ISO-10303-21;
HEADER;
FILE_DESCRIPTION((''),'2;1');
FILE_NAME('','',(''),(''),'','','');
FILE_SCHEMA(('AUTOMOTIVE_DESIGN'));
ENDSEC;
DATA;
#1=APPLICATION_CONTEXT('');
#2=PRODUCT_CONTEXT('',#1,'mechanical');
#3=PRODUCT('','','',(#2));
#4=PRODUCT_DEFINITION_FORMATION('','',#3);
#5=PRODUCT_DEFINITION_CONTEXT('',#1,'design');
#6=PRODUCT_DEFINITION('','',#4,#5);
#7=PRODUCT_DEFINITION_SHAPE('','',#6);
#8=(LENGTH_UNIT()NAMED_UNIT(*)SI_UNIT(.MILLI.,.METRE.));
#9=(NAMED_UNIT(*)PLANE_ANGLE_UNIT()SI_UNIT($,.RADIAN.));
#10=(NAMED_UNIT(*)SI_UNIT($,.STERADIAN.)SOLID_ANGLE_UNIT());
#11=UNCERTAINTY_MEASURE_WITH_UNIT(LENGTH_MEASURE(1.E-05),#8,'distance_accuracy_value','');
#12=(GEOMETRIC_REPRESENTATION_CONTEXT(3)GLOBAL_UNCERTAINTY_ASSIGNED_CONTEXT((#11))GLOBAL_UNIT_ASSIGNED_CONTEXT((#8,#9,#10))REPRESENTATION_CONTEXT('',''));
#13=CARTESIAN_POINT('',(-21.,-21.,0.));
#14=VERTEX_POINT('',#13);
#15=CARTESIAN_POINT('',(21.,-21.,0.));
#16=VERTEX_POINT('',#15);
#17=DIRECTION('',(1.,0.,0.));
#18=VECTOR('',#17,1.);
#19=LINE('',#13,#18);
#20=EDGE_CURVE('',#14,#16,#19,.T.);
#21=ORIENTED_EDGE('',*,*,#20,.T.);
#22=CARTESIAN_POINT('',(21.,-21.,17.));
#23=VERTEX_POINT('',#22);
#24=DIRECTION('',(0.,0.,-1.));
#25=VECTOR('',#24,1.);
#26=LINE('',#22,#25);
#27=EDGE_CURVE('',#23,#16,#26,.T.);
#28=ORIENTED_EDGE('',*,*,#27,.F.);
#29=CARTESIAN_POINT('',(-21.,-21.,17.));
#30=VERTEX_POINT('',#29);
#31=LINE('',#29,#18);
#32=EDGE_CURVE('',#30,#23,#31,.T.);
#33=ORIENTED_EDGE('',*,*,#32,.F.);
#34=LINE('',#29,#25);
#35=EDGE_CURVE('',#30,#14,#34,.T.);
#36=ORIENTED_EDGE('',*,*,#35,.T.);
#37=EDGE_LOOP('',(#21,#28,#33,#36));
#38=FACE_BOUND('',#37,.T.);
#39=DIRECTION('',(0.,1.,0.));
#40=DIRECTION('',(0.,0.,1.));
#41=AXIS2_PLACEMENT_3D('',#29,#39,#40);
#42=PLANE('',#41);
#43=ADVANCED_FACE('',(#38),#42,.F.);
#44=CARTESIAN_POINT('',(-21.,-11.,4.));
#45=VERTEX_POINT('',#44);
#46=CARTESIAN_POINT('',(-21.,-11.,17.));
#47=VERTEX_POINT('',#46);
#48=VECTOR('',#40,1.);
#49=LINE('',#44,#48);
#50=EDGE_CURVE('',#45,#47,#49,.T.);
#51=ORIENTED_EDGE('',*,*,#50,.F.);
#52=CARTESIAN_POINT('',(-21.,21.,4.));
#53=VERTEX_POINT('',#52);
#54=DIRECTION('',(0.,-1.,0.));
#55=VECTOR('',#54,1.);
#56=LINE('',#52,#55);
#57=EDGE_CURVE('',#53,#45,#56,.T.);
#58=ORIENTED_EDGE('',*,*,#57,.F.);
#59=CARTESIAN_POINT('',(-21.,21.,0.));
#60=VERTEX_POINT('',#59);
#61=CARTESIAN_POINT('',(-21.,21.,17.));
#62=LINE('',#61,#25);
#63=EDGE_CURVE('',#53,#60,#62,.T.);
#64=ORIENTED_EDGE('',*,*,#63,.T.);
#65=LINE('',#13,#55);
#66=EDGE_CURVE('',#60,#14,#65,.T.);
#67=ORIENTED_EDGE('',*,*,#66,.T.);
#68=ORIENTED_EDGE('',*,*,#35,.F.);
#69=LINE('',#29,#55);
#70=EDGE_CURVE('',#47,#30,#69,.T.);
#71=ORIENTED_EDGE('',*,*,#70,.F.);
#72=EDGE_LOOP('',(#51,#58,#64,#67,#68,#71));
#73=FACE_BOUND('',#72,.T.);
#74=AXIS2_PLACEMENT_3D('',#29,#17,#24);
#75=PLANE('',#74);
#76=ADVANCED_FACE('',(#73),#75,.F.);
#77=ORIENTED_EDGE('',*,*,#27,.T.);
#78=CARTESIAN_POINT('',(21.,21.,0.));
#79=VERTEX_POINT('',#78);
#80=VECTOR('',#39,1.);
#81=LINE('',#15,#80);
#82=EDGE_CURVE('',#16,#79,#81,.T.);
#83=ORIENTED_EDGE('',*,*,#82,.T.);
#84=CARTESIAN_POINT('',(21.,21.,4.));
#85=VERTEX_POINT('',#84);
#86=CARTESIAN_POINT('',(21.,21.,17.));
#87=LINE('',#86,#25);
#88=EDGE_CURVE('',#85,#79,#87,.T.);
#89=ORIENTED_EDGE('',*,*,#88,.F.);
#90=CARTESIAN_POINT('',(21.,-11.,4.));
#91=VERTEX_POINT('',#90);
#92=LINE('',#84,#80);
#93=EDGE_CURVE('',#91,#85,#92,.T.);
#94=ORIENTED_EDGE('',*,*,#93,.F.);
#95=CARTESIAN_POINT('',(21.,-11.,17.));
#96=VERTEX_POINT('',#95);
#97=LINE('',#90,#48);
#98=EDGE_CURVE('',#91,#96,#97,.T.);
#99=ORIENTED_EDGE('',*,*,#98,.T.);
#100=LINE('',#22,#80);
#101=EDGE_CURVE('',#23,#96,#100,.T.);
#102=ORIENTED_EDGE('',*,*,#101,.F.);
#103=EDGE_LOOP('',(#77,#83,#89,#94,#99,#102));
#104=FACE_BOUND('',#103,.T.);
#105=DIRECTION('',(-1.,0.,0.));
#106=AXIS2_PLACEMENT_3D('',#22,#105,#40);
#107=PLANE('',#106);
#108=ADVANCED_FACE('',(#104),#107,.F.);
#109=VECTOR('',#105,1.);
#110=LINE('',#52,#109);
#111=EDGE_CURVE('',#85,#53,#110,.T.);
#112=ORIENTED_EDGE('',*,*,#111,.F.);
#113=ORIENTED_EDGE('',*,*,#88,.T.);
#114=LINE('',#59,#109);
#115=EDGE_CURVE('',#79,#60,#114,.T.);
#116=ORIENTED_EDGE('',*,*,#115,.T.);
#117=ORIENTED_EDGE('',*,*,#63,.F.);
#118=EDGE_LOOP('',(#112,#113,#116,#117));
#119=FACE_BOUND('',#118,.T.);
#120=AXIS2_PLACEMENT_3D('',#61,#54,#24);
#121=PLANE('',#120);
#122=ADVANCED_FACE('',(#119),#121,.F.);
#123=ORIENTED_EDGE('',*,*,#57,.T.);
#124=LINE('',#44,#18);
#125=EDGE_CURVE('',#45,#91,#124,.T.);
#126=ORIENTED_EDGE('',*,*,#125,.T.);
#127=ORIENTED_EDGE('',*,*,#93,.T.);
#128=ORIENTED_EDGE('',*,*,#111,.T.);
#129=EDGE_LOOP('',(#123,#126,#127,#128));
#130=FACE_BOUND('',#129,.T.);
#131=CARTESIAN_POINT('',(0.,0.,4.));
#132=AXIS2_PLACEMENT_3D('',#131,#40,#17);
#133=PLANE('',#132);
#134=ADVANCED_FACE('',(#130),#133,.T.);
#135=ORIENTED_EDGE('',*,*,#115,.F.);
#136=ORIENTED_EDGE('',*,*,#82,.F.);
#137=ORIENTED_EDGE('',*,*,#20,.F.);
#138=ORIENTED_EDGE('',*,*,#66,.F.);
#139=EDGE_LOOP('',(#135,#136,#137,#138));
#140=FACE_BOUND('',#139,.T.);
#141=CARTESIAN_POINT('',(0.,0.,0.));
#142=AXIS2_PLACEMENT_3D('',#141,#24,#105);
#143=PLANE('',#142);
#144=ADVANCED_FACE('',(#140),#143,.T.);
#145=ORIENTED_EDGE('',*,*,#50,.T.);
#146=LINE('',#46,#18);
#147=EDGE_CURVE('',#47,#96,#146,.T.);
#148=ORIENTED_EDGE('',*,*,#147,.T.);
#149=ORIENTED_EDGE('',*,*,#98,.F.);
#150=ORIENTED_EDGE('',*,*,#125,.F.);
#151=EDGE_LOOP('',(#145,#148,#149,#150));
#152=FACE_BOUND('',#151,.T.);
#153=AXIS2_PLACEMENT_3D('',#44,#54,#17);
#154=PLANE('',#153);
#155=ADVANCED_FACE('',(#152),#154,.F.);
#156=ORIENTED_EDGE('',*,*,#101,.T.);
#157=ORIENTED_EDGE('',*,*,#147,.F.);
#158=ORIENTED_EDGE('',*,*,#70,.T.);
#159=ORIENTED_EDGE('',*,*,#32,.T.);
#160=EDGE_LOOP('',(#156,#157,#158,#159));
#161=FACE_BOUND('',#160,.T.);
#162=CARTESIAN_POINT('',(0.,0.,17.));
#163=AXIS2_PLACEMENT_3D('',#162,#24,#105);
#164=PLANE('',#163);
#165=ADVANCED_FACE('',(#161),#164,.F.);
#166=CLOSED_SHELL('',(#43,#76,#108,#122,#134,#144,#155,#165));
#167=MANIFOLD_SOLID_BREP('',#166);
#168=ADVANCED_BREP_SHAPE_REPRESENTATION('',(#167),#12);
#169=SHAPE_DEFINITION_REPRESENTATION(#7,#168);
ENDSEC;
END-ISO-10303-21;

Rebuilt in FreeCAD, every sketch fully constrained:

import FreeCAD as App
import Part
import Sketcher


def add_polygon(sketch, points):
    """Adds a closed chain of lines whose ends are joined by coincident constraints."""
    first, n = sketch.GeometryCount, len(points)
    for a, b in zip(points, points[1:] + points[:1]):
        sketch.addGeometry(Part.LineSegment(App.Vector(*a, 0), App.Vector(*b, 0)), False)
    for i in range(n):
        sketch.addConstraint(Sketcher.Constraint("Coincident", first + i, 2, first + (i + 1) % n, 1))

doc = App.newDocument("Part")
body = doc.addObject("PartDesign::Body", "Body")

# Sketch on XY plane
sketch1 = body.newObject("Sketcher::SketchObject", "Sketch")
sketch1.AttachmentSupport = (doc.getObject("XY_Plane"), [""])
sketch1.MapMode = "FlatFace"
add_polygon(sketch1, [(-21, 21), (-21, -21), (21, -21), (21, 21)])  # lines 0-3
sketch1.addConstraint([
    Sketcher.Constraint("Vertical", 0),
    Sketcher.Constraint("Horizontal", 1),
    Sketcher.Constraint("Vertical", 2),
    Sketcher.Constraint("Horizontal", 3),
    Sketcher.Constraint("Symmetric", 0, 2, 2, 2, -1, 1),
    Sketcher.Constraint("Equal", 3, 0),
    Sketcher.Constraint("DistanceX", 1, 1, 1, 2, 42.0),
])
pad1 = body.newObject("PartDesign::Pad", "Pad")
pad1.Profile = sketch1
pad1.Length = 17

# Sketch on XY plane
sketch2 = body.newObject("Sketcher::SketchObject", "Sketch001")
sketch2.AttachmentSupport = (doc.getObject("XY_Plane"), [""])
sketch2.MapMode = "FlatFace"
sketch2.AttachmentOffset = App.Placement(App.Vector(0, 0, 17), App.Rotation())
add_polygon(sketch2, [(-21, 21), (-21, -11), (21, -11), (21, 21)])  # lines 0-3
sketch2.addConstraint([
    Sketcher.Constraint("Vertical", 0),
    Sketcher.Constraint("Horizontal", 1),
    Sketcher.Constraint("Vertical", 2),
    Sketcher.Constraint("Horizontal", 3),
    Sketcher.Constraint("DistanceX", 1, 1, 1, 2, 42.0),
    Sketcher.Constraint("DistanceY", 0, 2, 0, 1, 32.0),
    Sketcher.Constraint("DistanceX", 0, 2, -1, 1, 21.0),
    Sketcher.Constraint("DistanceY", 0, 2, -1, 1, 11.0),
])
pocket1 = body.newObject("PartDesign::Pocket", "Pocket")
pocket1.Profile = sketch2
pocket1.Length = 13

doc.recompute()
